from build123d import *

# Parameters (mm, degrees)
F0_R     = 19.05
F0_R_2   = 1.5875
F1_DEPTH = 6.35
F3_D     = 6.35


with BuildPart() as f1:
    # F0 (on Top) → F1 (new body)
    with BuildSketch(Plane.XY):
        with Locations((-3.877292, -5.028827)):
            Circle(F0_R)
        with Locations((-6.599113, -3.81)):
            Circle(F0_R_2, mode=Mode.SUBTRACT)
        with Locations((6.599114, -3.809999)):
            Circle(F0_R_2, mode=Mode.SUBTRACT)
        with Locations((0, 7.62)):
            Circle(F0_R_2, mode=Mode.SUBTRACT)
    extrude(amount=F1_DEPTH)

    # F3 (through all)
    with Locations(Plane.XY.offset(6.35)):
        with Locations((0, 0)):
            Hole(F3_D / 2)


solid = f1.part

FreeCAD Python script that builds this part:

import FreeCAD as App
import Part
import Sketcher
from FreeCAD import Vector
Q = App.Units.Quantity

doc = App.newDocument("Part")
body = doc.addObject("PartDesign::Body", "Body")

sketch1 = body.newObject("Sketcher::SketchObject", "Sketch")
sketch1.AttachmentSupport = (doc.getObject("XY_Plane"), [""])
sketch1.MapMode = "FlatFace"
sketch1.addGeometry(Part.Circle(Vector(-3.9, -5, 0), Vector(0, 0, 1), 19.1), False)
sketch1.addGeometry(Part.Circle(Vector(-6.6, -3.8, 0), Vector(0, 0, 1), 1.6), False)
sketch1.addGeometry(Part.Circle(Vector(6.6, -3.8, 0), Vector(0, 0, 1), 1.6), False)
sketch1.addGeometry(Part.Circle(Vector(0, 7.6, 0), Vector(0, 0, 1), 1.6), False)
sketch1.addConstraint(Sketcher.Constraint("Equal", 1, 2))
sketch1.addConstraint(Sketcher.Constraint("Equal", 2, 3))
sketch1.addConstraint(Sketcher.Constraint("Symmetric", 1, 3, 2, 3, -2))
sketch1.addConstraint(Sketcher.Constraint("PointOnObject", 3, 3, -2))
sketch1.addConstraint(Sketcher.Constraint("Diameter", 0, Q("1.5 in")))
sketch1.addConstraint(Sketcher.Constraint("Diameter", 1, Q("0.125 in")))
sketch1.addConstraint(Sketcher.Constraint("DistanceY", -1, 1, 3, 3, Q("0.3 in")))
sketch1.addConstraint(Sketcher.Constraint("DistanceY", 1, 3, -1, 1, Q("0.15 in")))
sketch1.addConstraint(Sketcher.Constraint("DistanceX", 1, 3, 0, 3, Q("2.721821 mm")))
sketch1.addConstraint(Sketcher.Constraint("DistanceX", 0, 3, -1, 1, Q("3.877292 mm")))
sketch1.addConstraint(Sketcher.Constraint("DistanceY", 0, 3, -1, 1, Q("5.028827 mm")))
pad1 = body.newObject("PartDesign::Pad", "Pad")
pad1.Profile = sketch1
pad1.Length = Q("0.25 in")

sketch2 = body.newObject("Sketcher::SketchObject", "Sketch001")
sketch2.AttachmentSupport = (doc.getObject("XY_Plane"), [""])
sketch2.MapMode = "FlatFace"
sketch2.AttachmentOffset = App.Placement(Vector(0, 0, 0.25 * 25.4), App.Rotation())
sketch2.addGeometry(Part.Circle(Vector(0, 0, 0), Vector(0, 0, 1), 3.2), False)
sketch2.addConstraint(Sketcher.Constraint("Coincident", 0, 3, -1, 1))
sketch2.addConstraint(Sketcher.Constraint("Diameter", 0, Q("0.25 in")))
doc.recompute()
hole = body.newObject("PartDesign::Hole", "Hole")
hole.Profile = sketch2
hole.ThreadType = "None"
hole.Diameter = Q("0.25 in")
hole.DepthType = "ThroughAll"

doc.recompute()
